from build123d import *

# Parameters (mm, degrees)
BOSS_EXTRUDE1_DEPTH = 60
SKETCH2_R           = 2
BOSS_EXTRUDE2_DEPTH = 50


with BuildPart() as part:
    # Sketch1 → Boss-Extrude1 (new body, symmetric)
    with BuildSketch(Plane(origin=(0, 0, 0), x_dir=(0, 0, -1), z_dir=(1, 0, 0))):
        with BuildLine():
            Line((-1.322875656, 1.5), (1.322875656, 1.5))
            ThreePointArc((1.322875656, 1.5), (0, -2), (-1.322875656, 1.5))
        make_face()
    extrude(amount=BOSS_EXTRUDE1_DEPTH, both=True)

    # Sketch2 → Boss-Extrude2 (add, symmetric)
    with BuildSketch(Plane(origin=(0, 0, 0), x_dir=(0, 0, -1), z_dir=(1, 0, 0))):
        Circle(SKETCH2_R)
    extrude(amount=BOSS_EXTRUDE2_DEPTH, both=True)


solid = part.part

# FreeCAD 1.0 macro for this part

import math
import FreeCAD as App
import Part
import Sketcher
from FreeCAD import Vector
Q = App.Units.Quantity

doc = App.newDocument("Part")
body = doc.addObject("PartDesign::Body", "Body")

sketch1 = body.newObject("Sketcher::SketchObject", "Sketch")
sketch1.AttachmentSupport = (doc.getObject("YZ_Plane"), [""])
sketch1.MapMode = "FlatFace"
sketch1.addGeometry(Part.LineSegment(Vector(1.5, -1.3, 0), Vector(1.5, 1.3, 0)), False)
sketch1.addGeometry(Part.ArcOfCircle(Part.Circle(Vector(0, 0, 0), Vector(0, 0, 1), 2), math.radians(41), math.radians(319)), False)
sketch1.addConstraint(Sketcher.Constraint("Coincident", 0, 1, 1, 2))
sketch1.addConstraint(Sketcher.Constraint("Coincident", 1, 1, 0, 2))
sketch1.addConstraint(Sketcher.Constraint("Vertical", 0))
sketch1.addConstraint(Sketcher.Constraint("Coincident", 1, 3, -1, 1))
sketch1.addConstraint(Sketcher.Constraint("Radius", 1, Q("2 mm")))
sketch1.addConstraint(Sketcher.Constraint("DistanceX", -1, 1, 0, 1, Q("1.5 mm")))
pad1 = body.newObject("PartDesign::Pad", "Pad")
pad1.Profile = sketch1
pad1.Length = 120
pad1.Midplane = True

sketch2 = body.newObject("Sketcher::SketchObject", "Sketch001")
sketch2.AttachmentSupport = (doc.getObject("YZ_Plane"), [""])
sketch2.MapMode = "FlatFace"
sketch2.addGeometry(Part.Circle(Vector(0, 0, 0), Vector(0, 0, 1), 2), False)
sketch2.addConstraint(Sketcher.Constraint("Coincident", 0, 3, -1, 1))
sketch2.addConstraint(Sketcher.Constraint("Diameter", 0, Q("4 mm")))
pad2 = body.newObject("PartDesign::Pad", "Pad001")
pad2.Profile = sketch2
pad2.Length = 100
pad2.Midplane = True

doc.recompute()
